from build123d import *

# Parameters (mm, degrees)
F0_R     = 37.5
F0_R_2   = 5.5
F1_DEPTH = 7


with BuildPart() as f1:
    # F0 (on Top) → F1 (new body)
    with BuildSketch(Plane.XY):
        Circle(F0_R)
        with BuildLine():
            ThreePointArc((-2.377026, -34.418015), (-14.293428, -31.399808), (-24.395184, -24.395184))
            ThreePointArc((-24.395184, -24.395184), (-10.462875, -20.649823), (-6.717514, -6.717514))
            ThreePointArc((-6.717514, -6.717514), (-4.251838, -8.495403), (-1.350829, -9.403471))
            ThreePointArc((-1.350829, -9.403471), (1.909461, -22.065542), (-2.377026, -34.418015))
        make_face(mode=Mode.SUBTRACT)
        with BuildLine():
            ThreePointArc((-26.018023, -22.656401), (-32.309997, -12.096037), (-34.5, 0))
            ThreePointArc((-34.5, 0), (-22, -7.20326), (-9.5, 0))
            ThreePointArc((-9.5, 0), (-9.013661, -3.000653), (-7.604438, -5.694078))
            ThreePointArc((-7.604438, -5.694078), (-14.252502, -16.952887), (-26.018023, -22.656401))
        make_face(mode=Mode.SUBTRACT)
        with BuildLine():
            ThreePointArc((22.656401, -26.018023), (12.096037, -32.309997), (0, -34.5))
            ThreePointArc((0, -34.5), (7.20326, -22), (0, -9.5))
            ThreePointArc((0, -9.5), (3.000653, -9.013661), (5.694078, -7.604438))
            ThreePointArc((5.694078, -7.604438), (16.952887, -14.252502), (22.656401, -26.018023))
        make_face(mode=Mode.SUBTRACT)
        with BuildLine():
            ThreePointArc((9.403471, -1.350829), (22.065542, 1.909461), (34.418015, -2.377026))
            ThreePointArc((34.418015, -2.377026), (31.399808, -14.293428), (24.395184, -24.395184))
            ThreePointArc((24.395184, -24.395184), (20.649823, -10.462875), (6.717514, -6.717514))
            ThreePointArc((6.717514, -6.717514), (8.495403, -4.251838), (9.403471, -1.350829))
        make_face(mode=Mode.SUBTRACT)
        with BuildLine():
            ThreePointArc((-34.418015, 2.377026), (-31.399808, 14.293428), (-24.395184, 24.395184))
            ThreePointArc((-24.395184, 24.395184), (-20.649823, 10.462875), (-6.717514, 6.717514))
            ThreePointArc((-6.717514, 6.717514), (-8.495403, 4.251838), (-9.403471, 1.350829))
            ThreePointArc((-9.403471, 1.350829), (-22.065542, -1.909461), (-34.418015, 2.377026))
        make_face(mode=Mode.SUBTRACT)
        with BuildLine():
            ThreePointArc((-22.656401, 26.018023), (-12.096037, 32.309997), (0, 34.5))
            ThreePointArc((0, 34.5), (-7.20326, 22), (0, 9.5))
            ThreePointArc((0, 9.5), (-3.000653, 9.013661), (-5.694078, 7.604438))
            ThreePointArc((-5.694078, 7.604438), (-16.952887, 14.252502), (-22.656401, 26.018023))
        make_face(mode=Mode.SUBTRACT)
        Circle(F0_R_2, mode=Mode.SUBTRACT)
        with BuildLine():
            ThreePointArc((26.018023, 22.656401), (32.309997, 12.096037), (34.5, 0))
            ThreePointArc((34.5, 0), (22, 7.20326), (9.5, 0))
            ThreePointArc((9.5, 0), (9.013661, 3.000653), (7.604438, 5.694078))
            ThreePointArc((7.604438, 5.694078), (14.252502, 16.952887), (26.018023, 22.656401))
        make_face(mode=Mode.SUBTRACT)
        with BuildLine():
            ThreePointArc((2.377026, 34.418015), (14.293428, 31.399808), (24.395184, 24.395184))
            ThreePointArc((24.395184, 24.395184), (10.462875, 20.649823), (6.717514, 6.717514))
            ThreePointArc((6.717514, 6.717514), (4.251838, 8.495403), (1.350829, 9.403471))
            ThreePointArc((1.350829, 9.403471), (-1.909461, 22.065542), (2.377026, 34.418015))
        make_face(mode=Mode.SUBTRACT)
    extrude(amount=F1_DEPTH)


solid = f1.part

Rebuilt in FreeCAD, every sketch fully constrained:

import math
import FreeCAD as App
import Part
import Sketcher
from FreeCAD import Vector
Q = App.Units.Quantity

doc = App.newDocument("Part")
body = doc.addObject("PartDesign::Body", "Body")

# Sketch on XY plane
sketch1 = body.newObject("Sketcher::SketchObject", "Sketch")
sketch1.AttachmentSupport = (doc.getObject("XY_Plane"), [""])
sketch1.MapMode = "FlatFace"
sketch1.addGeometry(Part.Circle(Vector(0, 0, 0), Vector(0, 0, 1), 38), False)
sketch1.addGeometry(Part.ArcOfCircle(Part.Circle(Vector(-21, -21, 0), Vector(0, 0, 1), 23), math.radians(-36), math.radians(31)), False)
sketch1.addGeometry(Part.ArcOfCircle(Part.Circle(Vector(0, 0, 0), Vector(0, 0, 1), 34), math.radians(-135), math.radians(-94)), False)
sketch1.addGeometry(Part.ArcOfCircle(Part.Circle(Vector(-21, -10, 0), Vector(0, 0, 1), 14), math.radians(-105), math.radians(15)), False)
sketch1.addGeometry(Part.ArcOfCircle(Part.Circle(Vector(0, 0, 0), Vector(0, 0, 1), 9), math.radians(-135), math.radians(-98)), False)
sketch1.addGeometry(Part.ArcOfCircle(Part.Circle(Vector(-30, 0, 0), Vector(0, 0, 1), 23), math.radians(-81), math.radians(-14)), False)
sketch1.addGeometry(Part.ArcOfCircle(Part.Circle(Vector(0, 0, 0), Vector(0, 0, 1), 34), math.radians(180), math.radians(221)), False)
sketch1.addGeometry(Part.ArcOfCircle(Part.Circle(Vector(-22, 7, 0), Vector(0, 0, 1), 14), math.radians(-150), math.radians(-30)), False)
sketch1.addGeometry(Part.ArcOfCircle(Part.Circle(Vector(0, 0, 0), Vector(0, 0, 1), 9), math.radians(180), math.radians(217)), False)
sketch1.addGeometry(Part.ArcOfCircle(Part.Circle(Vector(0, -30, 0), Vector(0, 0, 1), 23), math.radians(9), math.radians(76)), False)
sketch1.addGeometry(Part.ArcOfCircle(Part.Circle(Vector(0, 0, 0), Vector(0, 0, 1), 34), math.radians(-90), math.radians(-49)), False)
sketch1.addGeometry(Part.ArcOfCircle(Part.Circle(Vector(-7, -22, 0), Vector(0, 0, 1), 14), math.radians(-60), math.radians(60)), False)
sketch1.addGeometry(Part.ArcOfCircle(Part.Circle(Vector(0, 0, 0), Vector(0, 0, 1), 9), math.radians(-90), math.radians(-53)), False)
sketch1.addGeometry(Part.ArcOfCircle(Part.Circle(Vector(0, 0, 0), Vector(0, 0, 1), 9), math.radians(-45), math.radians(-8)), False)
sketch1.addGeometry(Part.ArcOfCircle(Part.Circle(Vector(21, -21, 0), Vector(0, 0, 1), 23), math.radians(54), math.radians(121)), False)
sketch1.addGeometry(Part.ArcOfCircle(Part.Circle(Vector(0, 0, 0), Vector(0, 0, 1), 34), math.radians(-45), math.radians(-4)), False)
sketch1.addGeometry(Part.ArcOfCircle(Part.Circle(Vector(10, -21, 0), Vector(0, 0, 1), 14), math.radians(-15), math.radians(105)), False)
sketch1.addGeometry(Part.ArcOfCircle(Part.Circle(Vector(-21, 21, 0), Vector(0, 0, 1), 23), math.radians(-126), math.radians(-59)), False)
sketch1.addGeometry(Part.ArcOfCircle(Part.Circle(Vector(0, 0, 0), Vector(0, 0, 1), 34), math.radians(135), math.radians(176)), False)
sketch1.addGeometry(Part.ArcOfCircle(Part.Circle(Vector(-10, 21, 0), Vector(0, 0, 1), 14), math.radians(165), math.radians(285)), False)
sketch1.addGeometry(Part.ArcOfCircle(Part.Circle(Vector(0, 0, 0), Vector(0, 0, 1), 9), math.radians(135), math.radians(172)), False)
sketch1.addGeometry(Part.ArcOfCircle(Part.Circle(Vector(0, 30, 0), Vector(0, 0, 1), 23), math.radians(-171), math.radians(-104)), False)
sketch1.addGeometry(Part.ArcOfCircle(Part.Circle(Vector(0, 0, 0), Vector(0, 0, 1), 34), math.radians(90), math.radians(131)), False)
sketch1.addGeometry(Part.ArcOfCircle(Part.Circle(Vector(7, 22, 0), Vector(0, 0, 1), 14), math.radians(120), math.radians(240)), False)
sketch1.addGeometry(Part.ArcOfCircle(Part.Circle(Vector(0, 0, 0), Vector(0, 0, 1), 9), math.radians(90), math.radians(127)), False)
sketch1.addGeometry(Part.Circle(Vector(0, 0, 0), Vector(0, 0, 1), 6), False)
sketch1.addGeometry(Part.ArcOfCircle(Part.Circle(Vector(30, 0, 0), Vector(0, 0, 1), 23), math.radians(99), math.radians(166)), False)
sketch1.addGeometry(Part.ArcOfCircle(Part.Circle(Vector(0, 0, 0), Vector(0, 0, 1), 34), math.radians(0), math.radians(41)), False)
sketch1.addGeometry(Part.ArcOfCircle(Part.Circle(Vector(22, -7, 0), Vector(0, 0, 1), 14), math.radians(30), math.radians(150)), False)
sketch1.addGeometry(Part.ArcOfCircle(Part.Circle(Vector(0, 0, 0), Vector(0, 0, 1), 9), math.radians(0), math.radians(37)), False)
sketch1.addGeometry(Part.ArcOfCircle(Part.Circle(Vector(21, 21, 0), Vector(0, 0, 1), 23), math.radians(144), math.radians(211)), False)
sketch1.addGeometry(Part.ArcOfCircle(Part.Circle(Vector(0, 0, 0), Vector(0, 0, 1), 34), math.radians(45), math.radians(86)), False)
sketch1.addGeometry(Part.ArcOfCircle(Part.Circle(Vector(21, 10, 0), Vector(0, 0, 1), 14), math.radians(75), math.radians(195)), False)
sketch1.addGeometry(Part.ArcOfCircle(Part.Circle(Vector(0, 0, 0), Vector(0, 0, 1), 9), math.radians(45), math.radians(82)), False)
sketch1.addConstraint(Sketcher.Constraint("Coincident", 1, 1, 2, 2))
sketch1.addConstraint(Sketcher.Constraint("Coincident", 2, 1, 3, 1))
sketch1.addConstraint(Sketcher.Constraint("Coincident", 3, 2, 4, 1))
sketch1.addConstraint(Sketcher.Constraint("Coincident", 4, 2, 1, 2))
sketch1.addConstraint(Sketcher.Constraint("Coincident", 5, 1, 6, 2))
sketch1.addConstraint(Sketcher.Constraint("Coincident", 6, 1, 7, 1))
sketch1.addConstraint(Sketcher.Constraint("Coincident", 7, 2, 8, 1))
sketch1.addConstraint(Sketcher.Constraint("Coincident", 8, 2, 5, 2))
sketch1.addConstraint(Sketcher.Constraint("Coincident", 9, 1, 10, 2))
sketch1.addConstraint(Sketcher.Constraint("Coincident", 10, 1, 11, 1))
sketch1.addConstraint(Sketcher.Constraint("Coincident", 11, 2, 12, 1))
sketch1.addConstraint(Sketcher.Constraint("Coincident", 12, 2, 9, 2))
sketch1.addConstraint(Sketcher.Constraint("Coincident", 13, 2, 14, 2))
sketch1.addConstraint(Sketcher.Constraint("Coincident", 14, 1, 15, 2))
sketch1.addConstraint(Sketcher.Constraint("Coincident", 15, 1, 16, 1))
sketch1.addConstraint(Sketcher.Constraint("Coincident", 16, 2, 13, 1))
sketch1.addConstraint(Sketcher.Constraint("Coincident", 17, 1, 18, 2))
sketch1.addConstraint(Sketcher.Constraint("Coincident", 18, 1, 19, 1))
sketch1.addConstraint(Sketcher.Constraint("Coincident", 19, 2, 20, 1))
sketch1.addConstraint(Sketcher.Constraint("Coincident", 20, 2, 17, 2))
sketch1.addConstraint(Sketcher.Constraint("Coincident", 21, 1, 22, 2))
sketch1.addConstraint(Sketcher.Constraint("Coincident", 22, 1, 23, 1))
sketch1.addConstraint(Sketcher.Constraint("Coincident", 23, 2, 24, 1))
sketch1.addConstraint(Sketcher.Constraint("Coincident", 24, 2, 21, 2))
sketch1.addConstraint(Sketcher.Constraint("Coincident", 26, 1, 27, 2))
sketch1.addConstraint(Sketcher.Constraint("Coincident", 27, 1, 28, 1))
sketch1.addConstraint(Sketcher.Constraint("Coincident", 28, 2, 29, 1))
sketch1.addConstraint(Sketcher.Constraint("Coincident", 29, 2, 26, 2))
sketch1.addConstraint(Sketcher.Constraint("Coincident", 30, 1, 31, 2))
sketch1.addConstraint(Sketcher.Constraint("Coincident", 31, 1, 32, 1))
sketch1.addConstraint(Sketcher.Constraint("Coincident", 32, 2, 33, 1))
sketch1.addConstraint(Sketcher.Constraint("Coincident", 33, 2, 30, 2))
sketch1.addConstraint(Sketcher.Constraint("Coincident", 0, 3, -1, 1))
sketch1.addConstraint(Sketcher.Constraint("Coincident", 2, 3, -1, 1))
sketch1.addConstraint(Sketcher.Constraint("Coincident", 4, 3, -1, 1))
sketch1.addConstraint(Sketcher.Constraint("Coincident", 6, 3, -1, 1))
sketch1.addConstraint(Sketcher.Constraint("Coincident", 8, 3, -1, 1))
sketch1.addConstraint(Sketcher.Constraint("Coincident", 10, 3, -1, 1))
sketch1.addConstraint(Sketcher.Constraint("Coincident", 12, 3, -1, 1))
sketch1.addConstraint(Sketcher.Constraint("Coincident", 13, 3, -1, 1))
sketch1.addConstraint(Sketcher.Constraint("Coincident", 15, 3, -1, 1))
sketch1.addConstraint(Sketcher.Constraint("Coincident", 18, 3, -1, 1))
sketch1.addConstraint(Sketcher.Constraint("Coincident", 20, 3, -1, 1))
sketch1.addConstraint(Sketcher.Constraint("Coincident", 22, 3, -1, 1))
sketch1.addConstraint(Sketcher.Constraint("Coincident", 24, 3, -1, 1))
sketch1.addConstraint(Sketcher.Constraint("Coincident", 25, 3, -1, 1))
sketch1.addConstraint(Sketcher.Constraint("Coincident", 27, 3, -1, 1))
sketch1.addConstraint(Sketcher.Constraint("Coincident", 29, 3, -1, 1))
sketch1.addConstraint(Sketcher.Constraint("Coincident", 31, 3, -1, 1))
sketch1.addConstraint(Sketcher.Constraint("Coincident", 33, 3, -1, 1))
sketch1.addConstraint(Sketcher.Constraint("Equal", 3, 7))
sketch1.addConstraint(Sketcher.Constraint("Equal", 4, 8))
sketch1.addConstraint(Sketcher.Constraint("Equal", 5, 9))
sketch1.addConstraint(Sketcher.Constraint("Equal", 6, 10))
sketch1.addConstraint(Sketcher.Constraint("Equal", 7, 11))
sketch1.addConstraint(Sketcher.Constraint("Equal", 8, 12))
sketch1.addConstraint(Sketcher.Constraint("Equal", 12, 13))
sketch1.addConstraint(Sketcher.Constraint("Equal", 1, 14))
sketch1.addConstraint(Sketcher.Constraint("Equal", 2, 15))
sketch1.addConstraint(Sketcher.Constraint("Equal", 11, 16))
sketch1.addConstraint(Sketcher.Constraint("Equal", 14, 17))
sketch1.addConstraint(Sketcher.Constraint("Equal", 15, 18))
sketch1.addConstraint(Sketcher.Constraint("Equal", 16, 19))
sketch1.addConstraint(Sketcher.Constraint("Equal", 13, 20))
sketch1.addConstraint(Sketcher.Constraint("Equal", 9, 21))
sketch1.addConstraint(Sketcher.Constraint("Equal", 10, 22))
sketch1.addConstraint(Sketcher.Constraint("Equal", 19, 23))
sketch1.addConstraint(Sketcher.Constraint("Equal", 20, 24))
sketch1.addConstraint(Sketcher.Constraint("Equal", 21, 26))
sketch1.addConstraint(Sketcher.Constraint("Equal", 22, 27))
sketch1.addConstraint(Sketcher.Constraint("Equal", 23, 28))
sketch1.addConstraint(Sketcher.Constraint("Equal", 24, 29))
sketch1.addConstraint(Sketcher.Constraint("Equal", 17, 30))
sketch1.addConstraint(Sketcher.Constraint("Equal", 18, 31))
sketch1.addConstraint(Sketcher.Constraint("Equal", 28, 32))
sketch1.addConstraint(Sketcher.Constraint("Equal", 29, 33))
sketch1.addConstraint(Sketcher.Constraint("Symmetric", 14, 3, 17, 3, -1, 1))
sketch1.addConstraint(Sketcher.Constraint("Symmetric", 16, 3, 19, 3, -1, 1))
sketch1.addConstraint(Sketcher.Constraint("Symmetric", 9, 3, 21, 3, -1, 1))
sketch1.addConstraint(Sketcher.Constraint("Symmetric", 11, 3, 23, 3, -1, 1))
sketch1.addConstraint(Sketcher.Constraint("Symmetric", 5, 3, 26, 3, -1, 1))
sketch1.addConstraint(Sketcher.Constraint("Symmetric", 7, 3, 28, 3, -1, 1))
sketch1.addConstraint(Sketcher.Constraint("Symmetric", 1, 3, 30, 3, -1, 1))
sketch1.addConstraint(Sketcher.Constraint("Symmetric", 3, 3, 32, 3, -1, 1))
sketch1.addConstraint(Sketcher.Constraint("PointOnObject", 6, 1, -1))
sketch1.addConstraint(Sketcher.Constraint("PointOnObject", 7, 2, -1))
sketch1.addConstraint(Sketcher.Constraint("PointOnObject", 10, 1, -2))
sketch1.addConstraint(Sketcher.Constraint("PointOnObject", 11, 2, -2))
sketch1.addConstraint(Sketcher.Constraint("Horizontal", 2, 1, 15, 1))
sketch1.addConstraint(Sketcher.Constraint("Horizontal", 3, 2, 16, 2))
sketch1.addConstraint(Sketcher.Constraint("Diameter", 0, Q("75 mm")))
sketch1.addConstraint(Sketcher.Constraint("Diameter", 25, Q("11 mm")))
sketch1.addConstraint(Sketcher.Constraint("Radius", 4, Q("9.499999 mm")))
sketch1.addConstraint(Sketcher.Constraint("Radius", 6, Q("34.499999 mm")))
sketch1.addConstraint(Sketcher.Constraint("Radius", 5, Q("22.634021 mm")))
sketch1.addConstraint(Sketcher.Constraint("Radius", 1, Q("22.634016 mm")))
sketch1.addConstraint(Sketcher.Constraint("Radius", 2, Q("34.499996 mm")))
sketch1.addConstraint(Sketcher.Constraint("Radius", 3, Q("14.447414 mm")))
sketch1.addConstraint(Sketcher.Constraint("DistanceY", 5, 1, -1, 1, Q("22.656401 mm")))
sketch1.addConstraint(Sketcher.Constraint("DistanceX", -1, 1, 9, 1, Q("22.656401 mm")))
sketch1.addConstraint(Sketcher.Constraint("DistanceX", 3, 3, -1, 1, Q("20.67874 mm")))
sketch1.addConstraint(Sketcher.Constraint("DistanceY", 3, 3, -1, 1, Q("10.433958 mm")))
sketch1.addConstraint(Sketcher.Constraint("DistanceX", 4, 2, -1, 1, Q("1.350829 mm")))
sketch1.addConstraint(Sketcher.Constraint("DistanceX", 8, 2, -1, 1, Q("7.604438 mm")))
sketch1.addConstraint(Sketcher.Constraint("DistanceX", -1, 1, 12, 2, Q("5.694078 mm")))
sketch1.addConstraint(Sketcher.Constraint("DistanceX", -1, 1, 13, 2, Q("9.403471 mm")))
sketch1.addConstraint(Sketcher.Constraint("DistanceX", 1, 3, -1, 1, Q("20.705533 mm")))
sketch1.addConstraint(Sketcher.Constraint("DistanceX", -1, 1, 14, 3, Q("21.137785 mm")))
pad1 = body.newObject("PartDesign::Pad", "Pad")
pad1.Profile = sketch1
pad1.Length = 7

doc.recompute()
